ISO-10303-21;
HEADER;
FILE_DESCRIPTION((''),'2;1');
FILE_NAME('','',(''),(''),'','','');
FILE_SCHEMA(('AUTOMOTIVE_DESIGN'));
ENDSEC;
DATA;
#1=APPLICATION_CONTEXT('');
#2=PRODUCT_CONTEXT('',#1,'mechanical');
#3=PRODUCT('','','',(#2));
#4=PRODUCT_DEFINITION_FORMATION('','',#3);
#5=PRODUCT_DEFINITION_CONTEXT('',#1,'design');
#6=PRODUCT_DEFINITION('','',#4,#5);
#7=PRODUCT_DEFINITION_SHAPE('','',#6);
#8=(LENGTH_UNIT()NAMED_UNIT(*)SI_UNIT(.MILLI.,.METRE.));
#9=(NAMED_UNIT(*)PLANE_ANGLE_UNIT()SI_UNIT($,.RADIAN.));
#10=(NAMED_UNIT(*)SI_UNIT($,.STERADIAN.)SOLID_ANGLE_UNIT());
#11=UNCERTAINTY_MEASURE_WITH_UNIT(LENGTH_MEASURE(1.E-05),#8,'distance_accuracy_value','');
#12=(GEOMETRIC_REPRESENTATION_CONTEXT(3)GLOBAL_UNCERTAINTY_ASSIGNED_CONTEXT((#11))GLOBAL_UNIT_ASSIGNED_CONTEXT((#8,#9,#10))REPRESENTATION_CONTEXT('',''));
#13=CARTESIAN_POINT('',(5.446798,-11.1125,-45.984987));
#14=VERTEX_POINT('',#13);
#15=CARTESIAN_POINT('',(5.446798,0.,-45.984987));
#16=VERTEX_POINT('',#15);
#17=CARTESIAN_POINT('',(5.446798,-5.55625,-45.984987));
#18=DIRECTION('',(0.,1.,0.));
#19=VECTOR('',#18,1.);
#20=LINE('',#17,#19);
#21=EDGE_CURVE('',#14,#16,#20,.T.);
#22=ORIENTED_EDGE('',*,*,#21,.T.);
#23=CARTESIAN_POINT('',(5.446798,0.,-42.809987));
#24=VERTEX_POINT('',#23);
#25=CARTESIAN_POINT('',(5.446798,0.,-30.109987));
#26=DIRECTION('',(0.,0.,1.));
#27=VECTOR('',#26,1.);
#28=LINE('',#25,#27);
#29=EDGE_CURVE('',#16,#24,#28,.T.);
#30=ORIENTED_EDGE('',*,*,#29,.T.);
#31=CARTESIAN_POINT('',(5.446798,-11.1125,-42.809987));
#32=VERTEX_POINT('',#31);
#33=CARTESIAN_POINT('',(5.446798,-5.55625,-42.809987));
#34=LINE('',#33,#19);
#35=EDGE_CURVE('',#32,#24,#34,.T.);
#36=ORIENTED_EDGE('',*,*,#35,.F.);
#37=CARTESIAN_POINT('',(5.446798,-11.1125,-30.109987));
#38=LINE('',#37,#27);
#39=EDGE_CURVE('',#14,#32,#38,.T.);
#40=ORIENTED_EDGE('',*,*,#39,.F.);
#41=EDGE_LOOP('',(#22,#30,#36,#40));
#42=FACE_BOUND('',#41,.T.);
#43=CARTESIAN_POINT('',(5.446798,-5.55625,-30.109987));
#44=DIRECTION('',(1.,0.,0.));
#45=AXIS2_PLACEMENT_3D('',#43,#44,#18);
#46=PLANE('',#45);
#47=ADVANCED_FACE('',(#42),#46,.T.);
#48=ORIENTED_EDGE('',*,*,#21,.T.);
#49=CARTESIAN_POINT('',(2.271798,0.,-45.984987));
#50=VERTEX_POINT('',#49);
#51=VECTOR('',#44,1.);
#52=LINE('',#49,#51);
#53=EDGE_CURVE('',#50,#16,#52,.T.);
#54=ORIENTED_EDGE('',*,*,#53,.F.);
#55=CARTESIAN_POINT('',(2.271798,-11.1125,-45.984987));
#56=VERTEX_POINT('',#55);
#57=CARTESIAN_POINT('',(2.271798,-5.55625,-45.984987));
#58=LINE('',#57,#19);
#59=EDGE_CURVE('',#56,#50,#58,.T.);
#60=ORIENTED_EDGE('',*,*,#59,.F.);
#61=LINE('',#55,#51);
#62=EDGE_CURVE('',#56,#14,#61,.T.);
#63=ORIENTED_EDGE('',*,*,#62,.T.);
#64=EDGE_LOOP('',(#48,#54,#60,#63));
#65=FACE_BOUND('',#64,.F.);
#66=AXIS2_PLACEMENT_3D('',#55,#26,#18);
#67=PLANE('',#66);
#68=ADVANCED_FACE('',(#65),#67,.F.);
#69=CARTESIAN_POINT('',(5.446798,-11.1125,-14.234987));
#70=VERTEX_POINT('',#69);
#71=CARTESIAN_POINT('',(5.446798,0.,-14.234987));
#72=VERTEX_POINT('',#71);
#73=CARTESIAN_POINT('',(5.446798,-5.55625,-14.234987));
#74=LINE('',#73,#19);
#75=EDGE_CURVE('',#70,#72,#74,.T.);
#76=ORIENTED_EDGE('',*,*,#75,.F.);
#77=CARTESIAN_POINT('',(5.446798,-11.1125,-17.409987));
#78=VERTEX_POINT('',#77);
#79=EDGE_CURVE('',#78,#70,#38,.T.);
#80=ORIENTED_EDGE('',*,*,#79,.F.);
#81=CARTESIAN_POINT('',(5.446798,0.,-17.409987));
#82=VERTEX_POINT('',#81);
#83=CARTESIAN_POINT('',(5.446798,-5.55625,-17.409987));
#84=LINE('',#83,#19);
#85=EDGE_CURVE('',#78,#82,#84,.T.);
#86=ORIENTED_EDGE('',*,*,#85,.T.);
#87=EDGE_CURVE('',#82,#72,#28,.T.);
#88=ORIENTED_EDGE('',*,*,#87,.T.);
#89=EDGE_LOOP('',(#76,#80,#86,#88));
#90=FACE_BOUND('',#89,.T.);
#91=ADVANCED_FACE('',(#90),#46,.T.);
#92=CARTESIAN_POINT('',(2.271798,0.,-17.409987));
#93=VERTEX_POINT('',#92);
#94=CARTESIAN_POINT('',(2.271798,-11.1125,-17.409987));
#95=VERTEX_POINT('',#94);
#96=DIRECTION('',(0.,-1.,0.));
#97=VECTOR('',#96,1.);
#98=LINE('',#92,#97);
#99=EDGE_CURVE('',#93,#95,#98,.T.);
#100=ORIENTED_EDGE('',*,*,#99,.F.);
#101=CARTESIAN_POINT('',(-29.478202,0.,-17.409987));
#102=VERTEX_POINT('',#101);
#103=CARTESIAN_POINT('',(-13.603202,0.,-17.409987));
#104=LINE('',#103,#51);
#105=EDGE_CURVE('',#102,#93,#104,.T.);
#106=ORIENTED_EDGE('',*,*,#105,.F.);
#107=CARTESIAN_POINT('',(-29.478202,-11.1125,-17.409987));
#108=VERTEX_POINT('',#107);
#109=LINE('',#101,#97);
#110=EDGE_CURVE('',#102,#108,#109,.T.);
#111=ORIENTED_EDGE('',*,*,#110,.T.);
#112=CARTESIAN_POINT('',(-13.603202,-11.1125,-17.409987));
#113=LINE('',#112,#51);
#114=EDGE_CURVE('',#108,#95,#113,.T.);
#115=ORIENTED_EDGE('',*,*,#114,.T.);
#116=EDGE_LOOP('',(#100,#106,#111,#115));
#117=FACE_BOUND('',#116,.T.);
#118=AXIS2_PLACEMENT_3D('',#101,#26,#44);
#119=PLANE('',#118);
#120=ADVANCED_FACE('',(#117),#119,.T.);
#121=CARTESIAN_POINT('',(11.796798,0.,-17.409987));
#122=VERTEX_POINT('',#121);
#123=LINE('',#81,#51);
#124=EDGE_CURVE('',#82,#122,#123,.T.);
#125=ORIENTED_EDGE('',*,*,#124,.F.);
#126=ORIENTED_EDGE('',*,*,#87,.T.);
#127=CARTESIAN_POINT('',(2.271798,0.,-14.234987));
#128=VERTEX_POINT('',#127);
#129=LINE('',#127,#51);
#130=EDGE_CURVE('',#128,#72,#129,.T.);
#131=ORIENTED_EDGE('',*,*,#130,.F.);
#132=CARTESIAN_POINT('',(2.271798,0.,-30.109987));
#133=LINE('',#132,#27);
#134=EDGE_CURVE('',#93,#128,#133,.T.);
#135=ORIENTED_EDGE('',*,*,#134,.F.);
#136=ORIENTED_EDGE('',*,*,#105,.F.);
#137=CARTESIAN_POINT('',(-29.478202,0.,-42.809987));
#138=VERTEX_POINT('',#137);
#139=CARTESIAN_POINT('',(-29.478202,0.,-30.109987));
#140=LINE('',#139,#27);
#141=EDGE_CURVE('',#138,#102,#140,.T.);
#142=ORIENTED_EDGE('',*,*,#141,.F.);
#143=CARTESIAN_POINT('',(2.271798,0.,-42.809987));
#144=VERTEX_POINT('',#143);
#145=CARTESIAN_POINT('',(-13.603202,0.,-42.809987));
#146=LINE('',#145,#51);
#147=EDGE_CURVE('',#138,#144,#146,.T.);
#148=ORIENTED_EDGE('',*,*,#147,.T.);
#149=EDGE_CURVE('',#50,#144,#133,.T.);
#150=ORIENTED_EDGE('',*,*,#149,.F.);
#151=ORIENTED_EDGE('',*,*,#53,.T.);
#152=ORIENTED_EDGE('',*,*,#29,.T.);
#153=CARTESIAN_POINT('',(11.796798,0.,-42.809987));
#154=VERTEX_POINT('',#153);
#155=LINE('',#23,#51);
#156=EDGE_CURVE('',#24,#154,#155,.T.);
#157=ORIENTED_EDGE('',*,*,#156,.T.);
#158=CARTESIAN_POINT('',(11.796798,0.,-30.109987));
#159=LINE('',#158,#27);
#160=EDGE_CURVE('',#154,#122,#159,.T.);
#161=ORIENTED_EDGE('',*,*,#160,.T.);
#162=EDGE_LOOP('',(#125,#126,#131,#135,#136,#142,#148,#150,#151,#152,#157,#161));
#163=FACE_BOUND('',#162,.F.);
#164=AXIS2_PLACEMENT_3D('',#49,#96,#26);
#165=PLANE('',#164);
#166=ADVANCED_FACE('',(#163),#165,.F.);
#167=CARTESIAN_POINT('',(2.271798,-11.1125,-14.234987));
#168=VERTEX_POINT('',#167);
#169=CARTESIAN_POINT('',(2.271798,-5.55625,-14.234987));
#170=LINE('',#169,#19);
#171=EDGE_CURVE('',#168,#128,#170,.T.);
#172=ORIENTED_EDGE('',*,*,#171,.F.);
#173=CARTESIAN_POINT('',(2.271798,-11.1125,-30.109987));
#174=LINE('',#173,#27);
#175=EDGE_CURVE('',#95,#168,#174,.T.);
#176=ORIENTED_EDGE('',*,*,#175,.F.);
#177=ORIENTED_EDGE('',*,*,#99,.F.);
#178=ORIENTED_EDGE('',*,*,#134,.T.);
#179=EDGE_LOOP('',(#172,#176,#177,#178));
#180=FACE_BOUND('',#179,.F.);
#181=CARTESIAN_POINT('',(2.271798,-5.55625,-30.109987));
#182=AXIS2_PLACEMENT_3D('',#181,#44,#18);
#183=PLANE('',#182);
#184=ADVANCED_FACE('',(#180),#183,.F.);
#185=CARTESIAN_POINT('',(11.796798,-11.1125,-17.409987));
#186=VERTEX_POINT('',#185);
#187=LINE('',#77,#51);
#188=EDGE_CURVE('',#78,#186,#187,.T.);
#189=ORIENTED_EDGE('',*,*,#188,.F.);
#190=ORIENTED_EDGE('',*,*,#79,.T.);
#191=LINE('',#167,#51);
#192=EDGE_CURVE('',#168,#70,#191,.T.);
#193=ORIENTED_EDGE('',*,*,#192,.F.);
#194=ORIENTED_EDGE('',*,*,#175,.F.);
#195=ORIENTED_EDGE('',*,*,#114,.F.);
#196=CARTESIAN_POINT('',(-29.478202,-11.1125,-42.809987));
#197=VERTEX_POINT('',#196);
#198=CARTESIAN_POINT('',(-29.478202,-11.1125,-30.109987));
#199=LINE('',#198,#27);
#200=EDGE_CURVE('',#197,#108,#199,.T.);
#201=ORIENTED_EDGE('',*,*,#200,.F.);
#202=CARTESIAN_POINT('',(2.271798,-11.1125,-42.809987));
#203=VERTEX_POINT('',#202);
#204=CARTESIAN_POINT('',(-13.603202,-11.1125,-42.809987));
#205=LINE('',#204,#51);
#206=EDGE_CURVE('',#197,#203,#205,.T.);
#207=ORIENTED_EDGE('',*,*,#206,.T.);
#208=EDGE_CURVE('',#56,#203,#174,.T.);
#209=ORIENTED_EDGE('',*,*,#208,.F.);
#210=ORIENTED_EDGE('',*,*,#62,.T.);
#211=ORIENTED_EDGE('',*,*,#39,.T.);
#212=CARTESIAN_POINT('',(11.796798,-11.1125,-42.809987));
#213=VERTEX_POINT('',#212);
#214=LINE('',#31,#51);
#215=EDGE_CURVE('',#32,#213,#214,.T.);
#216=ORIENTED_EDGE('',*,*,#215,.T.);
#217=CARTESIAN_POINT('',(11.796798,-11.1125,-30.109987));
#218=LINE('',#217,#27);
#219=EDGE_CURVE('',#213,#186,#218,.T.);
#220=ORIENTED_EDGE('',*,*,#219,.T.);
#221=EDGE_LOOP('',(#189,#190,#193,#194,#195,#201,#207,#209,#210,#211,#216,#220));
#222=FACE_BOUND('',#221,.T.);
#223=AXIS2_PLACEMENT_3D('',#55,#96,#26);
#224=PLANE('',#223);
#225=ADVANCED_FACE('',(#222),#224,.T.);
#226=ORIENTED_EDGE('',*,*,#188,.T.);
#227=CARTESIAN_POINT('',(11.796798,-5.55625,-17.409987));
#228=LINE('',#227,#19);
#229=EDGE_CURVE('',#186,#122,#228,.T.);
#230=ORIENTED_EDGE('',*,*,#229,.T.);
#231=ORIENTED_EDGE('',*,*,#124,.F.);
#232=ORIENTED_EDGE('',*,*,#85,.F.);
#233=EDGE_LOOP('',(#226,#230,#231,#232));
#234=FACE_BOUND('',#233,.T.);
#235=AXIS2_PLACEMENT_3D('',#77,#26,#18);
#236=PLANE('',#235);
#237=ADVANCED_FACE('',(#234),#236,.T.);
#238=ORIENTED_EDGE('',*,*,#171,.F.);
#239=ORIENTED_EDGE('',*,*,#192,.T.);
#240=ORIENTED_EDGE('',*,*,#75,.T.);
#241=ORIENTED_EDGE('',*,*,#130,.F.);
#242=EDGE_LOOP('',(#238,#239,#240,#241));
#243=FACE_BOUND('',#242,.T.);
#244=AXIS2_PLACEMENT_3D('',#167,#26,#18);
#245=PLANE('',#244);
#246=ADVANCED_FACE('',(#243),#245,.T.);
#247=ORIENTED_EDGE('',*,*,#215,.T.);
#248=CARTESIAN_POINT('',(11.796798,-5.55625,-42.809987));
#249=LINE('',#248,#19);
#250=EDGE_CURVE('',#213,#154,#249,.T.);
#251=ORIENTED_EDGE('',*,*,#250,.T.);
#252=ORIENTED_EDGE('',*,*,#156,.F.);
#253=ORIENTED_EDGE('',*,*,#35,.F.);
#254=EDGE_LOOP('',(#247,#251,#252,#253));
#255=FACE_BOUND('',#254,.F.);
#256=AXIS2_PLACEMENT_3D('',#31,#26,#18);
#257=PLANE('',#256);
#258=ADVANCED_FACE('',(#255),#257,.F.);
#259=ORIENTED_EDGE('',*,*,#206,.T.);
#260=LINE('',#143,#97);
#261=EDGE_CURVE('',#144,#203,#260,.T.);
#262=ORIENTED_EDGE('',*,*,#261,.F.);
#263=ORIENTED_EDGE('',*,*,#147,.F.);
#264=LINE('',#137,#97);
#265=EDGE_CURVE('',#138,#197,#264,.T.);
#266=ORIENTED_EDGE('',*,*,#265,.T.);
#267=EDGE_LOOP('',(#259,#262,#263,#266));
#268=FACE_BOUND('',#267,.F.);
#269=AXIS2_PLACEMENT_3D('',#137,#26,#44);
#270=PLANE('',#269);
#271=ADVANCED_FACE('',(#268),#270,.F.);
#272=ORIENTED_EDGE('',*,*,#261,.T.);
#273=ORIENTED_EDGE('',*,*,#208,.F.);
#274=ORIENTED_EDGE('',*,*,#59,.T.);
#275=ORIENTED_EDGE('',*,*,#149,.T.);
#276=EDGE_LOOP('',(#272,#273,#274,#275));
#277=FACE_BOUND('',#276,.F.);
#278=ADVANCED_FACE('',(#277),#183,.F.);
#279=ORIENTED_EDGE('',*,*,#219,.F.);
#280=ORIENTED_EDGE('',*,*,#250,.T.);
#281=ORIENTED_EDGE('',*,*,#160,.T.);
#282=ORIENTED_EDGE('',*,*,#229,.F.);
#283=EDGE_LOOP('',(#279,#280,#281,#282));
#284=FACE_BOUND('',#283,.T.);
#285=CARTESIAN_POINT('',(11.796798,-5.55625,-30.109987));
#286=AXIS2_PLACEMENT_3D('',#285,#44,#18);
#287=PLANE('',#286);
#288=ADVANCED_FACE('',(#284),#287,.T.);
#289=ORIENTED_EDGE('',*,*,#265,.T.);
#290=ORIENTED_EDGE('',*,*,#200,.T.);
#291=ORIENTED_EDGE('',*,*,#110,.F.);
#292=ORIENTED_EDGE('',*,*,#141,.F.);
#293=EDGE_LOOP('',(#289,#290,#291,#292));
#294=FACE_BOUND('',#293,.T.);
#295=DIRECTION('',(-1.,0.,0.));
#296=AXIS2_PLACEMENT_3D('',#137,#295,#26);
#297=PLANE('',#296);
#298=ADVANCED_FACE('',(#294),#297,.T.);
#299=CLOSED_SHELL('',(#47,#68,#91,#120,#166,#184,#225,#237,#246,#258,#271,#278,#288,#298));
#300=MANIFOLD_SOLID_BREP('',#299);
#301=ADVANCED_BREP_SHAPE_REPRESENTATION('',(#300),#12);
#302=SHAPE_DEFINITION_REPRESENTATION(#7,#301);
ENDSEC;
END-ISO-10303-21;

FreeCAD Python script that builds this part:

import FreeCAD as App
import Part
import Sketcher
from FreeCAD import Vector
Q = App.Units.Quantity


def add_polygon(sketch, points):
    """Adds a closed chain of lines whose ends are joined by coincident constraints."""
    first, n = sketch.GeometryCount, len(points)
    for a, b in zip(points, points[1:] + points[:1]):
        sketch.addGeometry(Part.LineSegment(App.Vector(*a, 0), App.Vector(*b, 0)), False)
    for i in range(n):
        sketch.addConstraint(Sketcher.Constraint("Coincident", first + i, 2, first + (i + 1) % n, 1))

doc = App.newDocument("Part")
params = doc.addObject("Spreadsheet::Sheet", "Params")
for row, (alias, value) in enumerate([
    ("sketch1_height", "1 in"),
    ("sketch1_width", "1.25 in"),
    ("pad1_length", "0.4375 in"),
    ("sketch2_height", "1.25 in"),
    ("sketch2_width", "0.4375 in"),
    ("pad2_length", "0.125 in"),
    ("sketch3_height", "1 in"),
    ("sketch3_width", "0.4375 in"),
    ("pad3_length", "0.25 in"),
], start=1):
    params.set(f"A{row}", alias)
    params.set(f"B{row}", "=" + value)
    params.setAlias(f"B{row}", alias)

body = doc.addObject("PartDesign::Body", "Body")

# Sketch on XZ plane
sketch1 = body.newObject("Sketcher::SketchObject", "Sketch")
sketch1.AttachmentSupport = (doc.getObject("XZ_Plane"), [""])
sketch1.MapMode = "FlatFace"
add_polygon(sketch1, [(-29, -17), (-29, -43), (2, -43), (2, -17)])  # lines 0-3
sketch1.addConstraint([
    Sketcher.Constraint("Vertical", 0),
    Sketcher.Constraint("Horizontal", 1),
    Sketcher.Constraint("Vertical", 2),
    Sketcher.Constraint("Horizontal", 3),
    Sketcher.Constraint("DistanceY", 0, 2, 0, 1, Q("1 in")),
    Sketcher.Constraint("DistanceX", 1, 1, 1, 2, Q("1.25 in")),
    Sketcher.Constraint("DistanceX", 0, 2, -1, 1, Q("29.478202 mm")),
    Sketcher.Constraint("DistanceY", 0, 2, -1, 1, Q("42.809987 mm")),
])
sketch1.setExpression("Constraints[8]", "Params.sketch1_height")
sketch1.setExpression("Constraints[9]", "Params.sketch1_width")
pad1 = body.newObject("PartDesign::Pad", "Pad")
pad1.Profile = sketch1
pad1.setExpression("Length", "Params.pad1_length")

# Sketch on YZ plane
sketch2 = body.newObject("Sketcher::SketchObject", "Sketch001")
sketch2.AttachmentSupport = (doc.getObject("YZ_Plane"), [""])
sketch2.MapMode = "FlatFace"
sketch2.AttachmentOffset = App.Placement(Vector(0, 0, 2.271798), App.Rotation())
add_polygon(sketch2, [(-11, -14), (-11, -46), (0, -46), (0, -14)])  # lines 0-3
sketch2.addConstraint([
    Sketcher.Constraint("Vertical", 0),
    Sketcher.Constraint("Horizontal", 1),
    Sketcher.Constraint("Vertical", 2),
    Sketcher.Constraint("Horizontal", 3),
    Sketcher.Constraint("PointOnObject", 1, 2, -2),
    Sketcher.Constraint("DistanceY", 0, 2, 0, 1, Q("1.25 in")),
    Sketcher.Constraint("DistanceX", 1, 1, 1, 2, Q("0.4375 in")),
    Sketcher.Constraint("DistanceY", 0, 2, -1, 1, Q("45.984987 mm")),
])
sketch2.setExpression("Constraints[9]", "Params.sketch2_height")
sketch2.setExpression("Constraints[10]", "Params.sketch2_width")
pad2 = body.newObject("PartDesign::Pad", "Pad001")
pad2.Profile = sketch2
pad2.setExpression("Length", "Params.pad2_length")

# Sketch on YZ plane
sketch3 = body.newObject("Sketcher::SketchObject", "Sketch002")
sketch3.AttachmentSupport = (doc.getObject("YZ_Plane"), [""])
sketch3.MapMode = "FlatFace"
sketch3.AttachmentOffset = App.Placement(Vector(0, 0, 5.446798), App.Rotation())
add_polygon(sketch3, [(-11, -17), (-11, -43), (0, -43), (0, -17)])  # lines 0-3
sketch3.addConstraint([
    Sketcher.Constraint("Vertical", 0),
    Sketcher.Constraint("Horizontal", 1),
    Sketcher.Constraint("Vertical", 2),
    Sketcher.Constraint("Horizontal", 3),
    Sketcher.Constraint("PointOnObject", 1, 2, -2),
    Sketcher.Constraint("DistanceY", 0, 2, 0, 1, Q("1 in")),
    Sketcher.Constraint("DistanceX", 1, 1, 1, 2, Q("0.4375 in")),
    Sketcher.Constraint("DistanceY", 0, 2, -1, 1, Q("42.809987 mm")),
])
sketch3.setExpression("Constraints[9]", "Params.sketch3_height")
sketch3.setExpression("Constraints[10]", "Params.sketch3_width")
pad3 = body.newObject("PartDesign::Pad", "Pad002")
pad3.Profile = sketch3
pad3.setExpression("Length", "Params.pad3_length")

doc.recompute()
